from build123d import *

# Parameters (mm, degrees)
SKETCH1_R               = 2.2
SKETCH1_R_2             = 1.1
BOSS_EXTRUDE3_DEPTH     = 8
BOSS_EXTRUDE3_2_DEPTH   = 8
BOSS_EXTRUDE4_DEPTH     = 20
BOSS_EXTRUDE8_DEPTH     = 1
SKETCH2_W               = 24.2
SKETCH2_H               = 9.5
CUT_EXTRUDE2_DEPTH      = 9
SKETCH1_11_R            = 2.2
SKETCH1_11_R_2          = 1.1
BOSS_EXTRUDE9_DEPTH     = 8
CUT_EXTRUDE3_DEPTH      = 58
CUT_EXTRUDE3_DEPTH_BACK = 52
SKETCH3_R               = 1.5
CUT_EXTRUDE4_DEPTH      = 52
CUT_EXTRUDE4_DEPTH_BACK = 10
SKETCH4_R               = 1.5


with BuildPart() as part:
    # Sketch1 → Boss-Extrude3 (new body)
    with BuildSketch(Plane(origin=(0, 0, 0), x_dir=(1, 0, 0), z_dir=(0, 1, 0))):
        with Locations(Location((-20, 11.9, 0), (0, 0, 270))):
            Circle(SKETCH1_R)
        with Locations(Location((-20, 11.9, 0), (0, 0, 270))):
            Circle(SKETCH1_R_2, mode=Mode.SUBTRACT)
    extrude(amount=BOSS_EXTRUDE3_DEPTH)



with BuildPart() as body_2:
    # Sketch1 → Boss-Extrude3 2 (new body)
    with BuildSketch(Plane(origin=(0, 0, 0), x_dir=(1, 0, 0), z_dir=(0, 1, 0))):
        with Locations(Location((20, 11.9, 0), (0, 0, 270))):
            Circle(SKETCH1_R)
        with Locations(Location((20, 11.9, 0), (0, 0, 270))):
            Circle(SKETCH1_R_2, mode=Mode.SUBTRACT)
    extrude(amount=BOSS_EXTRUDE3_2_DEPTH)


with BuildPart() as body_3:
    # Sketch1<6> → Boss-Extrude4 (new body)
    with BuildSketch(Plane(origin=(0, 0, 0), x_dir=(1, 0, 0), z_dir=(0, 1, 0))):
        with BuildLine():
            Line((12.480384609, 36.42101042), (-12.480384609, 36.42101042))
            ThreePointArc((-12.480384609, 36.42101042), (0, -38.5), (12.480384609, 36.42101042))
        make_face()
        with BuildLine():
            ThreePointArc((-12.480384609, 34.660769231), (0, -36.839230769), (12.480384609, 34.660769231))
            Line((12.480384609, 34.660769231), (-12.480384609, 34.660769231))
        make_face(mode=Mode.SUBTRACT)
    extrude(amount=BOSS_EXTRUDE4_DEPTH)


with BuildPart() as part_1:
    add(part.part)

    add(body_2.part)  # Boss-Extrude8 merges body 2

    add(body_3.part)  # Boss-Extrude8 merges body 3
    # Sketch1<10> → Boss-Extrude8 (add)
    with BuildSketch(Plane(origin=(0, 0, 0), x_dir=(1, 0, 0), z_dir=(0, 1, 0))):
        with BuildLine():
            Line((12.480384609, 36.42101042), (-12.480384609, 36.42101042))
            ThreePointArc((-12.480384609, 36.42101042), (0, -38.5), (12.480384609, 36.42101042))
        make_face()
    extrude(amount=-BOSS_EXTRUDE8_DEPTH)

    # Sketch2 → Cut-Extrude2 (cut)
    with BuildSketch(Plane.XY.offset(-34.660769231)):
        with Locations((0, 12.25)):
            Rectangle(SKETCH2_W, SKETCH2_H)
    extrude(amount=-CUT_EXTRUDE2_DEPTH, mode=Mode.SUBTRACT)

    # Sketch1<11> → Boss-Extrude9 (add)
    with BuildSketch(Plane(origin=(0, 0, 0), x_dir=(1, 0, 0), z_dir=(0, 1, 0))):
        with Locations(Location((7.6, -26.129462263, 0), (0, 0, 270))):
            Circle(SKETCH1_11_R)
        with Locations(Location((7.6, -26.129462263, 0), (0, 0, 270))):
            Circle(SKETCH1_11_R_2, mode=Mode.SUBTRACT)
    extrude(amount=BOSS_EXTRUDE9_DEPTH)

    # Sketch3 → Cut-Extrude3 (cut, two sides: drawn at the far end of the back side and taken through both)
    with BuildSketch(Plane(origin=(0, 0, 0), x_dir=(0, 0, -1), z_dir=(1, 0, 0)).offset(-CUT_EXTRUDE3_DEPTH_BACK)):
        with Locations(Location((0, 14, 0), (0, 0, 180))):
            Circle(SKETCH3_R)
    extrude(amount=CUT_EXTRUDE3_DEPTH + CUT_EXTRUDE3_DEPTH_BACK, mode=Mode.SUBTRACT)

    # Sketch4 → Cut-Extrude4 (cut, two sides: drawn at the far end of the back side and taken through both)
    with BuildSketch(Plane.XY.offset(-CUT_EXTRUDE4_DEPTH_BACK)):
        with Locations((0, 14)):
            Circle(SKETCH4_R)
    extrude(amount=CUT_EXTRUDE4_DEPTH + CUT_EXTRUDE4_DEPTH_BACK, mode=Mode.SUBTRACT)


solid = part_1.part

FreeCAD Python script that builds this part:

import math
import FreeCAD as App
import Part
import Sketcher

V = App.Vector


def add_polygon(sketch, points):
    """Adds a closed chain of lines whose ends are joined by coincident constraints."""
    first, n = sketch.GeometryCount, len(points)
    for a, b in zip(points, points[1:] + points[:1]):
        sketch.addGeometry(Part.LineSegment(App.Vector(*a, 0), App.Vector(*b, 0)), False)
    for i in range(n):
        sketch.addConstraint(Sketcher.Constraint("Coincident", first + i, 2, first + (i + 1) % n, 1))

doc = App.newDocument("Part")
body = doc.addObject("PartDesign::Body", "Body")

sketch1 = doc.addObject("Sketcher::SketchObject", "Sketch")
body.addObject(sketch1)
sketch1.AttachmentSupport = (doc.XZ_Plane, [""])
sketch1.MapMode = "FlatFace"
sketch1.addGeometry(Part.Circle(V(-20, -11.9, 0), V(0, 0, 1), 2.2), False)
sketch1.addGeometry(Part.Circle(V(-20, -11.9, 0), V(0, 0, 1), 1.1), False)
sketch1.addConstraint(Sketcher.Constraint("Coincident", 1, 3, 0, 3))
sketch1.addConstraint(Sketcher.Constraint("Diameter", 0, 4.4))
sketch1.addConstraint(Sketcher.Constraint("Diameter", 1, 2.2))
sketch1.addConstraint(Sketcher.Constraint("DistanceX", 0, 3, -1, 1, 20.0))
sketch1.addConstraint(Sketcher.Constraint("DistanceY", 0, 3, -1, 1, 11.9))
pad1 = doc.addObject("PartDesign::Pad", "Pad")
body.addObject(pad1)
pad1.Profile = sketch1
pad1.Length = 8
pad1.Reversed = True
body2 = doc.addObject("PartDesign::Body", "Body001")

sketch2 = doc.addObject("Sketcher::SketchObject", "Sketch001")
body2.addObject(sketch2)
sketch2.AttachmentSupport = (doc.getObject("XZ_Plane001"), [""])
sketch2.MapMode = "FlatFace"
sketch2.addGeometry(Part.Circle(V(20, -11.9, 0), V(0, 0, 1), 2.2), False)
sketch2.addGeometry(Part.Circle(V(20, -11.9, 0), V(0, 0, 1), 1.1), False)
sketch2.addConstraint(Sketcher.Constraint("Coincident", 1, 3, 0, 3))
sketch2.addConstraint(Sketcher.Constraint("Diameter", 0, 4.4))
sketch2.addConstraint(Sketcher.Constraint("Diameter", 1, 2.2))
sketch2.addConstraint(Sketcher.Constraint("DistanceX", -1, 1, 0, 3, 20.0))
sketch2.addConstraint(Sketcher.Constraint("DistanceY", 0, 3, -1, 1, 11.9))
pad2 = doc.addObject("PartDesign::Pad", "Pad001")
body2.addObject(pad2)
pad2.Profile = sketch2
pad2.Length = 8
pad2.Reversed = True
body3 = doc.addObject("PartDesign::Body", "Body002")

sketch3 = doc.addObject("Sketcher::SketchObject", "Sketch002")
body3.addObject(sketch3)
sketch3.AttachmentSupport = (doc.getObject("XZ_Plane002"), [""])
sketch3.MapMode = "FlatFace"
sketch3.addGeometry(Part.LineSegment(V(12.480385, -36.42101, 0), V(-12.480385, -36.42101, 0)), False)
sketch3.addGeometry(Part.ArcOfCircle(Part.Circle(V(0, 0, 0), V(0, 0, 1), 38.5), math.radians(-71.084955), math.radians(251.084955)), False)
sketch3.addGeometry(Part.ArcOfCircle(Part.Circle(V(0, 0, 0), V(0, 0, 1), 36.839231), math.radians(-70.197454), math.radians(250.197454)), False)
sketch3.addGeometry(Part.LineSegment(V(-12.480385, -34.660769, 0), V(12.480385, -34.660769, 0)), False)
sketch3.addConstraint(Sketcher.Constraint("Coincident", 0, 1, 1, 1))
sketch3.addConstraint(Sketcher.Constraint("Coincident", 1, 2, 0, 2))
sketch3.addConstraint(Sketcher.Constraint("Coincident", 2, 1, 3, 2))
sketch3.addConstraint(Sketcher.Constraint("Coincident", 3, 1, 2, 2))
sketch3.addConstraint(Sketcher.Constraint("Horizontal", 0))
sketch3.addConstraint(Sketcher.Constraint("Horizontal", 3))
sketch3.addConstraint(Sketcher.Constraint("Coincident", 1, 3, -1, 1))
sketch3.addConstraint(Sketcher.Constraint("Coincident", 2, 3, -1, 1))
sketch3.addConstraint(Sketcher.Constraint("Vertical", 0, 1, 2, 1))
sketch3.addConstraint(Sketcher.Constraint("Radius", 1, 38.5))
sketch3.addConstraint(Sketcher.Constraint("Radius", 2, 36.839231))
sketch3.addConstraint(Sketcher.Constraint("DistanceX", 0, 2, 0, 1, 24.960769))
pad3 = doc.addObject("PartDesign::Pad", "Pad002")
body3.addObject(pad3)
pad3.Profile = sketch3
pad3.Length = 20
pad3.Reversed = True
body.AllowCompound = True
doc.recompute()

boolean = doc.addObject("PartDesign::Boolean", "Boolean")
body.addObject(boolean)
boolean.Type = "Fuse"
boolean.addObjects([body2])
doc.recompute()

boolean2 = doc.addObject("PartDesign::Boolean", "Boolean001")
body.addObject(boolean2)
boolean2.Type = "Fuse"
boolean2.addObjects([body3])

sketch4 = doc.addObject("Sketcher::SketchObject", "Sketch003")
body.addObject(sketch4)
sketch4.AttachmentSupport = (doc.XZ_Plane, [""])
sketch4.MapMode = "FlatFace"
sketch4.addGeometry(Part.LineSegment(V(12.480385, -36.42101, 0), V(-12.480385, -36.42101, 0)), False)
sketch4.addGeometry(Part.ArcOfCircle(Part.Circle(V(0, 0, 0), V(0, 0, 1), 38.5), math.radians(-71.084955), math.radians(251.084955)), False)
sketch4.addConstraint(Sketcher.Constraint("Coincident", 0, 1, 1, 1))
sketch4.addConstraint(Sketcher.Constraint("Coincident", 1, 2, 0, 2))
sketch4.addConstraint(Sketcher.Constraint("Horizontal", 0))
sketch4.addConstraint(Sketcher.Constraint("Coincident", 1, 3, -1, 1))
sketch4.addConstraint(Sketcher.Constraint("Radius", 1, 38.5))
sketch4.addConstraint(Sketcher.Constraint("DistanceX", 0, 2, 0, 1, 24.960769))
pad4 = doc.addObject("PartDesign::Pad", "Pad003")
body.addObject(pad4)
pad4.Profile = sketch4
pad4.Length = 1

sketch5 = doc.addObject("Sketcher::SketchObject", "Sketch004")
body.addObject(sketch5)
sketch5.AttachmentSupport = (doc.XY_Plane, [""])
sketch5.MapMode = "FlatFace"
sketch5.AttachmentOffset = App.Placement(V(0, 0, -34.660769), App.Rotation())
add_polygon(sketch5, [(-12.1, 17), (-12.1, 7.5), (12.1, 7.5), (12.1, 17)])
sketch5.addConstraint(Sketcher.Constraint("Vertical", 0))
sketch5.addConstraint(Sketcher.Constraint("Horizontal", 1))
sketch5.addConstraint(Sketcher.Constraint("Vertical", 2))
sketch5.addConstraint(Sketcher.Constraint("Horizontal", 3))
sketch5.addConstraint(Sketcher.Constraint("DistanceX", 1, 1, 1, 2, 24.2))
sketch5.addConstraint(Sketcher.Constraint("DistanceY", 0, 2, 0, 1, 9.5))
sketch5.addConstraint(Sketcher.Constraint("DistanceY", -1, 1, 2, 2, 17.0))
sketch5.addConstraint(Sketcher.Constraint("DistanceX", 0, 2, -1, 1, 12.1))
pocket1 = doc.addObject("PartDesign::Pocket", "Pocket")
body.addObject(pocket1)
pocket1.Profile = sketch5
pocket1.Length = 9

sketch6 = doc.addObject("Sketcher::SketchObject", "Sketch005")
body.addObject(sketch6)
sketch6.AttachmentSupport = (doc.XZ_Plane, [""])
sketch6.MapMode = "FlatFace"
sketch6.addGeometry(Part.Circle(V(7.6, 26.129462, 0), V(0, 0, 1), 2.2), False)
sketch6.addGeometry(Part.Circle(V(7.6, 26.129462, 0), V(0, 0, 1), 1.1), False)
sketch6.addConstraint(Sketcher.Constraint("Coincident", 1, 3, 0, 3))
sketch6.addConstraint(Sketcher.Constraint("Diameter", 0, 4.4))
sketch6.addConstraint(Sketcher.Constraint("Diameter", 1, 2.2))
sketch6.addConstraint(Sketcher.Constraint("DistanceX", -1, 1, 0, 3, 7.6))
sketch6.addConstraint(Sketcher.Constraint("DistanceY", -1, 1, 0, 3, 26.129462))
pad5 = doc.addObject("PartDesign::Pad", "Pad004")
body.addObject(pad5)
pad5.Profile = sketch6
pad5.Length = 8
pad5.Reversed = True

sketch7 = doc.addObject("Sketcher::SketchObject", "Sketch006")
body.addObject(sketch7)
sketch7.AttachmentSupport = (doc.YZ_Plane, [""])
sketch7.MapMode = "FlatFace"
sketch7.addGeometry(Part.Circle(V(14, 0, 0), V(0, 0, 1), 1.5), False)
sketch7.addConstraint(Sketcher.Constraint("PointOnObject", 0, 3, -1))
sketch7.addConstraint(Sketcher.Constraint("Diameter", 0, 3.0))
sketch7.addConstraint(Sketcher.Constraint("DistanceX", -1, 1, 0, 3, 14.0))
pocket2 = doc.addObject("PartDesign::Pocket", "Pocket001")
body.addObject(pocket2)
pocket2.Profile = sketch7
pocket2.Type = "ThroughAll"
pocket2.Midplane = True

sketch8 = doc.addObject("Sketcher::SketchObject", "Sketch007")
body.addObject(sketch8)
sketch8.AttachmentSupport = (doc.XY_Plane, [""])
sketch8.MapMode = "FlatFace"
sketch8.addGeometry(Part.Circle(V(0, 14, 0), V(0, 0, 1), 1.5), False)
sketch8.addConstraint(Sketcher.Constraint("PointOnObject", 0, 3, -2))
sketch8.addConstraint(Sketcher.Constraint("Diameter", 0, 3.0))
sketch8.addConstraint(Sketcher.Constraint("DistanceY", -1, 1, 0, 3, 14.0))
pocket3 = doc.addObject("PartDesign::Pocket", "Pocket002")
body.addObject(pocket3)
pocket3.Profile = sketch8
pocket3.Type = "ThroughAll"
pocket3.Midplane = True

doc.recompute()
